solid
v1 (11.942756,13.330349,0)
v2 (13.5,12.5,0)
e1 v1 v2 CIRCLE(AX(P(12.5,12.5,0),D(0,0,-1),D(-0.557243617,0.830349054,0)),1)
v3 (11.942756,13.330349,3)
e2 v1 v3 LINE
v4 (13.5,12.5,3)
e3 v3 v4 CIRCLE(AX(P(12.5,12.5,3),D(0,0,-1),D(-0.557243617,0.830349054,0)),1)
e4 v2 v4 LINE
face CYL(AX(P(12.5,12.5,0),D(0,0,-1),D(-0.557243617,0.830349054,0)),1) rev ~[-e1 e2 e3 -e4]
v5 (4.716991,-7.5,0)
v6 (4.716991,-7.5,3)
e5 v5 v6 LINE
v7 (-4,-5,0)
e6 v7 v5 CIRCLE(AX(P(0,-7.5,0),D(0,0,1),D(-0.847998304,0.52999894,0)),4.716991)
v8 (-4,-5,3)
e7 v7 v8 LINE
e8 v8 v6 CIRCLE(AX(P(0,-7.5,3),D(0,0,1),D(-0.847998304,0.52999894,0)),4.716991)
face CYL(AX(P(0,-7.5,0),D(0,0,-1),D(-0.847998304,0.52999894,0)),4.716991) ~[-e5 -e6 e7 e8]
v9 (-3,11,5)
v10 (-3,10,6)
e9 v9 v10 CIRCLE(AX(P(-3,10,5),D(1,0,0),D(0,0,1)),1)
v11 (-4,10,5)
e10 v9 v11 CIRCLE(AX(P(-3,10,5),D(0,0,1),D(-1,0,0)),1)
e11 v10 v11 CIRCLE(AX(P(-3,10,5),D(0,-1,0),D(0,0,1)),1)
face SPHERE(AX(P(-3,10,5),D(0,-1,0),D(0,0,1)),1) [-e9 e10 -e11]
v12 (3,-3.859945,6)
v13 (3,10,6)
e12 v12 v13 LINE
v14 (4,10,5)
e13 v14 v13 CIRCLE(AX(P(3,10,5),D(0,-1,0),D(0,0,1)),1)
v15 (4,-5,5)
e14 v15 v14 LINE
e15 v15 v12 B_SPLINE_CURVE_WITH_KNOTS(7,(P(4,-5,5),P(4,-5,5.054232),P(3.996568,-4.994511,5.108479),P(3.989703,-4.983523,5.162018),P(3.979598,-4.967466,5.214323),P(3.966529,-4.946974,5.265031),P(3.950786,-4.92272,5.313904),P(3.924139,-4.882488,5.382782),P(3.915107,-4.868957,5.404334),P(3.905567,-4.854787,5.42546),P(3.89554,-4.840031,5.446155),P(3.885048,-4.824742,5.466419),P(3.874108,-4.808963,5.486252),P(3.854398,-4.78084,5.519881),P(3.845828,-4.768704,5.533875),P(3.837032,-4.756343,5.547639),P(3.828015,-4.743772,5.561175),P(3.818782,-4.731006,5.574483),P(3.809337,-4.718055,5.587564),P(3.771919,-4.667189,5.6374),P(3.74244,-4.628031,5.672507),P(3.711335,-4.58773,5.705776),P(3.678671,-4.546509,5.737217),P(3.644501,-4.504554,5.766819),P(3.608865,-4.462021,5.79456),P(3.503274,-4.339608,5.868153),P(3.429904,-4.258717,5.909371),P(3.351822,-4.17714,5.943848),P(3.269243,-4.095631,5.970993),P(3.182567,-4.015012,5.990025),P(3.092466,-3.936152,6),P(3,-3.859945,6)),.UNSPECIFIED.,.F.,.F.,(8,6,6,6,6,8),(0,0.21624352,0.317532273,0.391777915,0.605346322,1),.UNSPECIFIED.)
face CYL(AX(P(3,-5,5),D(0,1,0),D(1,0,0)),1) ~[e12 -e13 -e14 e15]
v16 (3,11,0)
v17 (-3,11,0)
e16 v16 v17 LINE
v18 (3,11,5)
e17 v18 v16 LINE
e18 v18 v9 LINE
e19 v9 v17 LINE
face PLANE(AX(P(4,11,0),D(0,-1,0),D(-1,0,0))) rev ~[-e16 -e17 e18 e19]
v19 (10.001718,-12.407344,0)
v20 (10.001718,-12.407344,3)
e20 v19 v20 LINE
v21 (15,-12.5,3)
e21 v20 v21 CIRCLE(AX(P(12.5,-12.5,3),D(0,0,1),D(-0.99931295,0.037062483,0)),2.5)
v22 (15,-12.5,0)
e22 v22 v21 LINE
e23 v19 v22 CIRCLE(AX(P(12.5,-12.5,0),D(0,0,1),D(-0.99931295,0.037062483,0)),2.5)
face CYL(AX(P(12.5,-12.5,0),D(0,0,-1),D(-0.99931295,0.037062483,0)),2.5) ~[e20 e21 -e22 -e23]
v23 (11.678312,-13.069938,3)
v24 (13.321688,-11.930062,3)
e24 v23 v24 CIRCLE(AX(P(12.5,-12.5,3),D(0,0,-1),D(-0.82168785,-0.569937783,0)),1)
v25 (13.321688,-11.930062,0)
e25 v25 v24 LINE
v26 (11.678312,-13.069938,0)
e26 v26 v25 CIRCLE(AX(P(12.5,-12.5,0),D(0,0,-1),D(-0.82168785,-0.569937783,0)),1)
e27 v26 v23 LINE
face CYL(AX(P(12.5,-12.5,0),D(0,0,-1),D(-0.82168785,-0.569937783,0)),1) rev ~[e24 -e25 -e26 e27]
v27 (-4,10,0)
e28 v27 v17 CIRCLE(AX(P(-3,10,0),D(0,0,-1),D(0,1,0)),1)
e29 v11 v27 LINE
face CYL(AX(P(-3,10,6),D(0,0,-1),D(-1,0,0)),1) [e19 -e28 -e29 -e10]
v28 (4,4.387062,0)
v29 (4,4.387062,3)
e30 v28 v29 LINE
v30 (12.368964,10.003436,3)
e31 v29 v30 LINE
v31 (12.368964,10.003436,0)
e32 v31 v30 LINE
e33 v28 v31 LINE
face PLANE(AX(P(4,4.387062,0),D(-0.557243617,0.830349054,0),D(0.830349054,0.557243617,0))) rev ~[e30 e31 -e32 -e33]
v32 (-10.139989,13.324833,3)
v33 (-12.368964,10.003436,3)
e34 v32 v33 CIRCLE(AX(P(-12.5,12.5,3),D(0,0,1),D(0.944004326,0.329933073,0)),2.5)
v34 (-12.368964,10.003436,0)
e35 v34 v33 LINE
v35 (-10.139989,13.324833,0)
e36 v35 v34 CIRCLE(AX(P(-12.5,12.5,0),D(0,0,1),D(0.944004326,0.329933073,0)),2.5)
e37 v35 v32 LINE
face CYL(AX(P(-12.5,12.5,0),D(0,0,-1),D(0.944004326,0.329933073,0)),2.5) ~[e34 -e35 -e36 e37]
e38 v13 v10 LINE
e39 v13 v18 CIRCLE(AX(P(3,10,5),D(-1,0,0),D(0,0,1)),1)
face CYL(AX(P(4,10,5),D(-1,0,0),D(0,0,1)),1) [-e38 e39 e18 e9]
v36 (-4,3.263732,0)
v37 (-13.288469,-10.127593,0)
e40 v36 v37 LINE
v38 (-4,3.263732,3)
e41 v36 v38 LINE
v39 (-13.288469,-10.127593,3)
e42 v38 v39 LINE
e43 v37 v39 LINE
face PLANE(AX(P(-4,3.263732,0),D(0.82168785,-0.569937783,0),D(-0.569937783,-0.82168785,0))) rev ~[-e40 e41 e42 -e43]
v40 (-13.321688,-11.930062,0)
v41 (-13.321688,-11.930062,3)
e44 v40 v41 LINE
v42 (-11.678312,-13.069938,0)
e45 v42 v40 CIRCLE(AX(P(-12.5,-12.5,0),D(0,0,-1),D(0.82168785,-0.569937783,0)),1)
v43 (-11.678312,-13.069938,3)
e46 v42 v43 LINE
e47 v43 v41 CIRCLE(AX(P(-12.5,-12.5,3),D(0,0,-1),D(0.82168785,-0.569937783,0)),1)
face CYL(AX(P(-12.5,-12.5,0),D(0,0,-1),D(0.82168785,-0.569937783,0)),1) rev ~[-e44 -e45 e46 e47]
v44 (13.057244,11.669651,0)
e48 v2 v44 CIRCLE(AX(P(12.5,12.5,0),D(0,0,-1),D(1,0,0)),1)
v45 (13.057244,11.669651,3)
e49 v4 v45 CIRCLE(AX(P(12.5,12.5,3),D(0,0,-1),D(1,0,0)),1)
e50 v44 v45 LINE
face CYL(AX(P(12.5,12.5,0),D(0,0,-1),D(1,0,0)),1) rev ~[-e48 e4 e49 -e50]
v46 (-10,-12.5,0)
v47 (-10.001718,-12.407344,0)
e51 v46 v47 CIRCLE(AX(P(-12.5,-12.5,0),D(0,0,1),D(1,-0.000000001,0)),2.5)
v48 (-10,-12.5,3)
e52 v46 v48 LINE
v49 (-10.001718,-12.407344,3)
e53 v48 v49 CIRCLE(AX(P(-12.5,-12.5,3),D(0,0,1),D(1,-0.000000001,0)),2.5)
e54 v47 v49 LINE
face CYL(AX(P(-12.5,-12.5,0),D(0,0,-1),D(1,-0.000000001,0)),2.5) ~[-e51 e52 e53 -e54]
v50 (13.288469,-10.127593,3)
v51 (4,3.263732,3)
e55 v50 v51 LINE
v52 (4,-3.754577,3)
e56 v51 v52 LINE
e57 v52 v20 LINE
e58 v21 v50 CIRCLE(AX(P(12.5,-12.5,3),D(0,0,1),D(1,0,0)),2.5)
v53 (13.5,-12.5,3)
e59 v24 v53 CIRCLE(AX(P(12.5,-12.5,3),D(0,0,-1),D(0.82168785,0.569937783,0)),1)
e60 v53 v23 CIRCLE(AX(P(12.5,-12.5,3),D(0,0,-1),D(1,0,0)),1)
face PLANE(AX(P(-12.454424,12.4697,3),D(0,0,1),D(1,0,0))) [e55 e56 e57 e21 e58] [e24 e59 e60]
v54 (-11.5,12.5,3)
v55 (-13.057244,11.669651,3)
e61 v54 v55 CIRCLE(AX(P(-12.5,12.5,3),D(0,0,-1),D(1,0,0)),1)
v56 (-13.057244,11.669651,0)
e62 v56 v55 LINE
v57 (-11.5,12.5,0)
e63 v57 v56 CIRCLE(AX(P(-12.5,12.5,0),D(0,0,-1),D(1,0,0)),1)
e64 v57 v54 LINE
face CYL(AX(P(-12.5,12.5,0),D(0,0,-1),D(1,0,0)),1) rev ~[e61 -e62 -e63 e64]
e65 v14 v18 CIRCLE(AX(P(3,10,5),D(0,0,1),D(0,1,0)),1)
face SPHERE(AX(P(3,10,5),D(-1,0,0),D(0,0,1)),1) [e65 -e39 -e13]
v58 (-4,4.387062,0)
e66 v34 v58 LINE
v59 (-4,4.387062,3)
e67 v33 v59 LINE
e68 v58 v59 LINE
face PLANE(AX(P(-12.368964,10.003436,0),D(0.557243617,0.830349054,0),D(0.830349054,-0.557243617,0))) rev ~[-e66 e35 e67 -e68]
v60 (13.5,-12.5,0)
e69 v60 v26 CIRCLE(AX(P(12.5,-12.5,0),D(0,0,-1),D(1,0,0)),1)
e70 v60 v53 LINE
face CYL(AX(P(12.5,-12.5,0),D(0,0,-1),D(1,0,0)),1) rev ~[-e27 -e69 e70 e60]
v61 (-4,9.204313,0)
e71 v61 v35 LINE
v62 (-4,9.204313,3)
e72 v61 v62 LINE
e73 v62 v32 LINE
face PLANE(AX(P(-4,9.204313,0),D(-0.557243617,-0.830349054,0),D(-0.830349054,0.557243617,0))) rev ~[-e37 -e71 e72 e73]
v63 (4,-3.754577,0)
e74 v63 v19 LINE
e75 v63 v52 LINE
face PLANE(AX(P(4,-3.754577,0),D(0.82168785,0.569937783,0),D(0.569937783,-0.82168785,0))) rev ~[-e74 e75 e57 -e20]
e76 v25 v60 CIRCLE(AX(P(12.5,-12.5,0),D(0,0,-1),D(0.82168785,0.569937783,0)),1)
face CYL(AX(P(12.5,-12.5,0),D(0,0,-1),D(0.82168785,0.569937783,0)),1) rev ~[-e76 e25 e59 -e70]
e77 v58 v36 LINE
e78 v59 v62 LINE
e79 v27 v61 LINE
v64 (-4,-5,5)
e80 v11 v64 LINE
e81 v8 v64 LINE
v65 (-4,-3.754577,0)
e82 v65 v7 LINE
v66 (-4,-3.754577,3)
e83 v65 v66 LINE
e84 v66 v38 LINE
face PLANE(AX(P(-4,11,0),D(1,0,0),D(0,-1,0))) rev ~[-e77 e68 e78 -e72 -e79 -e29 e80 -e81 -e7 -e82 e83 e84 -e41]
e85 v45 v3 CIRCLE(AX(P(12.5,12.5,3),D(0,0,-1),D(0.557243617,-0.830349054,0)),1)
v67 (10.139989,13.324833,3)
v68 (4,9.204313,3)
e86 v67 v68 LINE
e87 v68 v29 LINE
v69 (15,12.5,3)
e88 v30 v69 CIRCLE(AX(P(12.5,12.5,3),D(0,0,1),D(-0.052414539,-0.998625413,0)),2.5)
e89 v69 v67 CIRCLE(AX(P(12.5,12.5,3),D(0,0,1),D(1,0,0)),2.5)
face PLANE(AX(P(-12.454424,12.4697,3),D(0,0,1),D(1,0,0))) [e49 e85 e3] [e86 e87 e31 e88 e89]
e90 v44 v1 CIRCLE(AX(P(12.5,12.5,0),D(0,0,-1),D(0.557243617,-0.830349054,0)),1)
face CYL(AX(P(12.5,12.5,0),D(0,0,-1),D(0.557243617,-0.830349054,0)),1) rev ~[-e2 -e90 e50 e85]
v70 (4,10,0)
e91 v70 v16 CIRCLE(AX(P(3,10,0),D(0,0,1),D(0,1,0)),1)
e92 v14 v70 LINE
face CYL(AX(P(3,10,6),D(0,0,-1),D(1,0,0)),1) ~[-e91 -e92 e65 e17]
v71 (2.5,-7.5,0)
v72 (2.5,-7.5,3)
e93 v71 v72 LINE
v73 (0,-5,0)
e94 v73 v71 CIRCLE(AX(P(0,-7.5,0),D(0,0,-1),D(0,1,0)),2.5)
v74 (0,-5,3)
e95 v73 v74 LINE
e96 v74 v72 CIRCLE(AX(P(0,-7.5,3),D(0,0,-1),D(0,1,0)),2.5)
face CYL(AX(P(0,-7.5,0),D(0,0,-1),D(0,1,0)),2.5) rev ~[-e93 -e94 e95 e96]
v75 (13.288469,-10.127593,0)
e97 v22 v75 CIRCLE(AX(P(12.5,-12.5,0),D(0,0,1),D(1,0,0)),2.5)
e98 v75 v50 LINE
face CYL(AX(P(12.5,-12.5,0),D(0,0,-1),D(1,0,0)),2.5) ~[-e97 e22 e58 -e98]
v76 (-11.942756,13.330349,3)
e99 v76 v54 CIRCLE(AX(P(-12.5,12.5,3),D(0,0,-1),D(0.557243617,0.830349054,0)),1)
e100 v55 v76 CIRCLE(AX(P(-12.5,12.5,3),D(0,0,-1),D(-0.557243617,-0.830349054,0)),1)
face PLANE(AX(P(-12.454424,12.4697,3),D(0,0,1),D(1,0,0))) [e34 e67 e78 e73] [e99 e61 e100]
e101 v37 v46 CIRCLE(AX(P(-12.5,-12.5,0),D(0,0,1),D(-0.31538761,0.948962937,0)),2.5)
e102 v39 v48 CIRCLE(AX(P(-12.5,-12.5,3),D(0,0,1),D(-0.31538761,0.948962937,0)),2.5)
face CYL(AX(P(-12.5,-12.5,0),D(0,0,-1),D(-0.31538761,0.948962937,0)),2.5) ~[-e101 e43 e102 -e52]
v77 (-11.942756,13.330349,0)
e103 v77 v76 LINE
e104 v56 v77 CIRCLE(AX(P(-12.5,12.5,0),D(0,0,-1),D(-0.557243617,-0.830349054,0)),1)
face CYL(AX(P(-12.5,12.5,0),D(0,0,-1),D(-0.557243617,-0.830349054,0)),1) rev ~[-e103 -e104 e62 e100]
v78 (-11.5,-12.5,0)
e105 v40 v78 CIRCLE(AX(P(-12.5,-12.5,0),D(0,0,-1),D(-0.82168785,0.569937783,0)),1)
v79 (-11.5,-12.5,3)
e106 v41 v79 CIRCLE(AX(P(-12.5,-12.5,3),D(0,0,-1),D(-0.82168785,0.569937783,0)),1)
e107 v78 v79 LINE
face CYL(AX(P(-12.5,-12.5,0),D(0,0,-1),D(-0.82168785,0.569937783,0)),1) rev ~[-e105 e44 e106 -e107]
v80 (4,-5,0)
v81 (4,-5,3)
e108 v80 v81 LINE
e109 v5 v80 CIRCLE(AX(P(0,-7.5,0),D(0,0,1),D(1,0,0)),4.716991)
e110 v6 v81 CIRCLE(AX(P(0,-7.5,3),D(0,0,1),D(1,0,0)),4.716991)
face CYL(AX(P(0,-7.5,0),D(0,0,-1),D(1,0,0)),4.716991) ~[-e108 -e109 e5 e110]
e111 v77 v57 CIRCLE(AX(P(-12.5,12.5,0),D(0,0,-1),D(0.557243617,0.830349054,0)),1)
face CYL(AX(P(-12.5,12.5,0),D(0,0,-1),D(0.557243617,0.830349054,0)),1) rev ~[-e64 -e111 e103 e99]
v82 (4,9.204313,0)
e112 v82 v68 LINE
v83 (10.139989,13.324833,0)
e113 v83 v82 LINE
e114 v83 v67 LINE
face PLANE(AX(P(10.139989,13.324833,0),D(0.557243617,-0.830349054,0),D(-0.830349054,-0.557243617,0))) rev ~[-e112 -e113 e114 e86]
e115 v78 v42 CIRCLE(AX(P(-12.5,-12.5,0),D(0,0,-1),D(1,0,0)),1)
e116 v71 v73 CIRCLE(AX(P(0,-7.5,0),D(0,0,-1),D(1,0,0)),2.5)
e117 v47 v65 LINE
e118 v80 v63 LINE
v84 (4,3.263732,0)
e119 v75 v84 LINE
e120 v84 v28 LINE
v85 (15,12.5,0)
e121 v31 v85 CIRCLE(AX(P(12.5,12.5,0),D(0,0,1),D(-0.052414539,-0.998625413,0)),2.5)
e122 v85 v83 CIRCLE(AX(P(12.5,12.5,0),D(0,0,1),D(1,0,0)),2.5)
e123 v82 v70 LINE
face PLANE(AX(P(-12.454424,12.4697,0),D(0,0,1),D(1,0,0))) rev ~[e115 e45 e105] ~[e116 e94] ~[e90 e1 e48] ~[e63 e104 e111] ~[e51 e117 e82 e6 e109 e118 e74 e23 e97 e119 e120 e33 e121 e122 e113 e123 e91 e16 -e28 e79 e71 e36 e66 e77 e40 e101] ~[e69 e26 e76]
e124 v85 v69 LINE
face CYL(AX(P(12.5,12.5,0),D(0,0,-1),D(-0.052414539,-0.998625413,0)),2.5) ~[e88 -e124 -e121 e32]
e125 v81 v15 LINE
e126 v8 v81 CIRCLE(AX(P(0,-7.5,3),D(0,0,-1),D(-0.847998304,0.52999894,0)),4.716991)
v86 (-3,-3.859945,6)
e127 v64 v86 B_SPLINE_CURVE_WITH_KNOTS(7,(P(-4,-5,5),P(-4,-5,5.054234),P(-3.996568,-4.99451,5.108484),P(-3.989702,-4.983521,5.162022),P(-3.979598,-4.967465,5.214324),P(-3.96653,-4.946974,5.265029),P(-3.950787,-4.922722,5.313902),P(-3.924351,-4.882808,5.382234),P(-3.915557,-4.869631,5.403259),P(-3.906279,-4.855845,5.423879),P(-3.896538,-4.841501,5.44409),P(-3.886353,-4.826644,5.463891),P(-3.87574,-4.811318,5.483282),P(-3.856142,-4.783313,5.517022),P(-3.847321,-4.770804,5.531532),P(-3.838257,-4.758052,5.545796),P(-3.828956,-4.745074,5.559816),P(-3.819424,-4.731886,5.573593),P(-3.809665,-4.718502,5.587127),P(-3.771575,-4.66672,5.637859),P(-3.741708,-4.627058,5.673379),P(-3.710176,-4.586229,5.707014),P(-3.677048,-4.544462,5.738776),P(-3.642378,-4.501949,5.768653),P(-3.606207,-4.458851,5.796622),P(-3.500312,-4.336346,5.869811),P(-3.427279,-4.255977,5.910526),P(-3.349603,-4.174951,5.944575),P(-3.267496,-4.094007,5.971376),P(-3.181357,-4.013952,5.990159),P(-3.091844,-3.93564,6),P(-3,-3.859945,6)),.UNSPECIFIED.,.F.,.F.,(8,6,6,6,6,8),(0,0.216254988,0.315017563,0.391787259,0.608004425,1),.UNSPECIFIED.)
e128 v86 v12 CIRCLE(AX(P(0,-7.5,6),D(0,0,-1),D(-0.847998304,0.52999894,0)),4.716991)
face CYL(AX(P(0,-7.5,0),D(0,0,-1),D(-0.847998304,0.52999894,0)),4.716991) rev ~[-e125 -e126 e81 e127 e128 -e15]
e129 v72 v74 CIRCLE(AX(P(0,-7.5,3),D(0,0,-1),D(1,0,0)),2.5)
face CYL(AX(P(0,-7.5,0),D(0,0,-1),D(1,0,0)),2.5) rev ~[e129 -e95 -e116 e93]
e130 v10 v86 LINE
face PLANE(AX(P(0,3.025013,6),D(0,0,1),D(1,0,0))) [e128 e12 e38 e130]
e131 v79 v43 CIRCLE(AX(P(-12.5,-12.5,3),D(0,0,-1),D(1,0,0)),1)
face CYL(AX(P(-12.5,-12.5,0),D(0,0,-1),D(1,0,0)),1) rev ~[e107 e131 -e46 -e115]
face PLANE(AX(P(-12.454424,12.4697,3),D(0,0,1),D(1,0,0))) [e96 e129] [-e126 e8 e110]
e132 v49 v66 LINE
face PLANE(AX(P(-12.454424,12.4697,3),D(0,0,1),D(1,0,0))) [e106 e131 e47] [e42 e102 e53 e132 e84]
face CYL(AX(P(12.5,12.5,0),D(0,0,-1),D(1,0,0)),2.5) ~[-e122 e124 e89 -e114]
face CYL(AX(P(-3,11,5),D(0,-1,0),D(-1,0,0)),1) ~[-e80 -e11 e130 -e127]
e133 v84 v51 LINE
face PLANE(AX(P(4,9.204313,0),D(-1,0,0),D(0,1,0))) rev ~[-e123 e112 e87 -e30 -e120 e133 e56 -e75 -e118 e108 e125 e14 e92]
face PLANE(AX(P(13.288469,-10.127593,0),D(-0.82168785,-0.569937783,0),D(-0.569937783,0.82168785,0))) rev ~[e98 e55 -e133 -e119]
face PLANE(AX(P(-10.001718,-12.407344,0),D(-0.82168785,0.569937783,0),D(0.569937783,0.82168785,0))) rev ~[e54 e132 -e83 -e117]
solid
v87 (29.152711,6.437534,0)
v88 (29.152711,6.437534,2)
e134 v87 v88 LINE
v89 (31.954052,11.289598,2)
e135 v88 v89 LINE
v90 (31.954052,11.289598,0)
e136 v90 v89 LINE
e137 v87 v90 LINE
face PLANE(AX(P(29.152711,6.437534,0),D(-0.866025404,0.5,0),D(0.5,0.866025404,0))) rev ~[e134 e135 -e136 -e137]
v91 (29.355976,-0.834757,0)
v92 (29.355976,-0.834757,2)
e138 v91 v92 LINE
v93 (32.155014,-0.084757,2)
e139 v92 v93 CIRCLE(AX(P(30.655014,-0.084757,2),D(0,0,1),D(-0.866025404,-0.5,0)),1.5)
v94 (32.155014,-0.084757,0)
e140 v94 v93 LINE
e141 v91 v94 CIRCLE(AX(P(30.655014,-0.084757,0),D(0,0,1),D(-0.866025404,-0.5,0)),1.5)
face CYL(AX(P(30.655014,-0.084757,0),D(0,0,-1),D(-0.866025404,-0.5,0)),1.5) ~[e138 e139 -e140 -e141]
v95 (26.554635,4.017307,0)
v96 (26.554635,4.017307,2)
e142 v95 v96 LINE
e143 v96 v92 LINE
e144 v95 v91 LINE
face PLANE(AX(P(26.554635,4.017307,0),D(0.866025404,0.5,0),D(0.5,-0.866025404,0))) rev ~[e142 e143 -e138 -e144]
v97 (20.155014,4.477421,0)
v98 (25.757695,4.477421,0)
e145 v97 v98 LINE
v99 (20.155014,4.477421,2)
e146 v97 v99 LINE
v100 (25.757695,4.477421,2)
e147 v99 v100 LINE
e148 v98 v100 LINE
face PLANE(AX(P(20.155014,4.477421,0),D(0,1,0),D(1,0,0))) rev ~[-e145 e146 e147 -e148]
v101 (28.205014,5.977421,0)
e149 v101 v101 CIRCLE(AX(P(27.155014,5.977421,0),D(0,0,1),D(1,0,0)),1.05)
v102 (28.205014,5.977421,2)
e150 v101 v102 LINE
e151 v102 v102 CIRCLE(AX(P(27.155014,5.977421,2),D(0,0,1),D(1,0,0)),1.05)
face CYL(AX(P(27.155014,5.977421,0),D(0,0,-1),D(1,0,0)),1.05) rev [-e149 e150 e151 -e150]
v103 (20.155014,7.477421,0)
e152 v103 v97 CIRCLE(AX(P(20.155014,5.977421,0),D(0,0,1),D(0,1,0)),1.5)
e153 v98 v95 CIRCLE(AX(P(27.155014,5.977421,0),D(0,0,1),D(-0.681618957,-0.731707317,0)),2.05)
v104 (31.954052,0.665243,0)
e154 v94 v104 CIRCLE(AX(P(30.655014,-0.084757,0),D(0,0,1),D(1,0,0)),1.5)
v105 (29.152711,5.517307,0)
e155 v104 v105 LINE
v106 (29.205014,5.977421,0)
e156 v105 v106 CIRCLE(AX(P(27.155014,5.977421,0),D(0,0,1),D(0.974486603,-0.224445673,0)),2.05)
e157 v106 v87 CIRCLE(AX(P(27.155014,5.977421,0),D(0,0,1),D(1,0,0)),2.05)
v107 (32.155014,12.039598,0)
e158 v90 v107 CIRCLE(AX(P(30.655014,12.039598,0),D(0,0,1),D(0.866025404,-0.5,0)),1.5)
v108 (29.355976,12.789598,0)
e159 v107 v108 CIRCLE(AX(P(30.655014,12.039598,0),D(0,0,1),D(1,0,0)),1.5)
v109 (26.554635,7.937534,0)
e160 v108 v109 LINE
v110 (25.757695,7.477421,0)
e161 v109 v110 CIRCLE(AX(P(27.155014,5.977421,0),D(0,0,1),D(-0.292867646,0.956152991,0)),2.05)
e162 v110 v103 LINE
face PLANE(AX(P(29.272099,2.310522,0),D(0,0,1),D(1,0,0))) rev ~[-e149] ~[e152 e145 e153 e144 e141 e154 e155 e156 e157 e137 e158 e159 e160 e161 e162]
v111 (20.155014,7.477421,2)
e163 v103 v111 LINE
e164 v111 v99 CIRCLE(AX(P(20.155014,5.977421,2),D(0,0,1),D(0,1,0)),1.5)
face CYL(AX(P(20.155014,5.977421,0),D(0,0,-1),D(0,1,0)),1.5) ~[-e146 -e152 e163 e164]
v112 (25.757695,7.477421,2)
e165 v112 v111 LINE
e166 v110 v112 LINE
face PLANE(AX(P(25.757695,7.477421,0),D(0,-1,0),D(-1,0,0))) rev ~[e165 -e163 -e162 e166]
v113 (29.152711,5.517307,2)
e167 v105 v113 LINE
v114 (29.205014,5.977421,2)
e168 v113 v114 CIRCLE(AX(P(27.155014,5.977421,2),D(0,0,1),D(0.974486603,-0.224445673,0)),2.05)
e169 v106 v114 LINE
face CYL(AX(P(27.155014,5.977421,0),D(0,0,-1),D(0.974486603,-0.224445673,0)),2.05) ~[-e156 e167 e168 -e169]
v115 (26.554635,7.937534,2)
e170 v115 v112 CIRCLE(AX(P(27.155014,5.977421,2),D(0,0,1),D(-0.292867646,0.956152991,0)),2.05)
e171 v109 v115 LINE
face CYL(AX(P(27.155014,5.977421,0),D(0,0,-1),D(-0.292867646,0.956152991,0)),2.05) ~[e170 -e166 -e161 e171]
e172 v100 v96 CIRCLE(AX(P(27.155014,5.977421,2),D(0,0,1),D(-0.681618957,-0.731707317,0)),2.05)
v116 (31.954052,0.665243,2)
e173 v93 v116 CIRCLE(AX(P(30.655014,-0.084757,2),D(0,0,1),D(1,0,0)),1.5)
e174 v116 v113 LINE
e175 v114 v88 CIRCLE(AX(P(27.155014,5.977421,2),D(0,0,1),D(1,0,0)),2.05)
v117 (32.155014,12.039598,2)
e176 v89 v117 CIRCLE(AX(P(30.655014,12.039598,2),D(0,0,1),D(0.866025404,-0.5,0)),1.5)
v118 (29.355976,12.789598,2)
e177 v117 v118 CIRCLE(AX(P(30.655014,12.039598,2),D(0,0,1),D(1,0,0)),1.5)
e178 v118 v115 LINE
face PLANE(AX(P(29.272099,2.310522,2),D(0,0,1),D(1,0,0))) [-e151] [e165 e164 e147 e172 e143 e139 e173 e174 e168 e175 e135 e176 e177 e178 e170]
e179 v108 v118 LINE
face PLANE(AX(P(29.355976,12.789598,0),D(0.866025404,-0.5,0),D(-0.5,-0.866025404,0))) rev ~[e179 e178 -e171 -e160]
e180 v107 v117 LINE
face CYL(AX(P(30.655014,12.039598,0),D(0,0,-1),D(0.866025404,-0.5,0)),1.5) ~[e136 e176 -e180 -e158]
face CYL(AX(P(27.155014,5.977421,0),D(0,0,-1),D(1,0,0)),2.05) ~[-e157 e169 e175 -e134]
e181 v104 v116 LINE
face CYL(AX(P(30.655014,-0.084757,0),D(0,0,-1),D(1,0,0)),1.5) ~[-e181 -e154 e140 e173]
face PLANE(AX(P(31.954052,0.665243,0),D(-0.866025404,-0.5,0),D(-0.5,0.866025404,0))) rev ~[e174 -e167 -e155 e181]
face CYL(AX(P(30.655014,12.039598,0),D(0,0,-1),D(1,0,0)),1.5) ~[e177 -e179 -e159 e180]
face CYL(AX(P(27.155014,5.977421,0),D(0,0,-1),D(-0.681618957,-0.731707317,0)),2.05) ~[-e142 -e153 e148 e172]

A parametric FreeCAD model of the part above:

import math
import FreeCAD as App
import Part
import Sketcher
from FreeCAD import Vector
Q = App.Units.Quantity


def edges_at(feature, points):
    """Names of the edges that pass closest to the given points."""
    edges = feature.Shape.Edges
    near = lambda p: min(range(len(edges)), key=lambda i: edges[i].distToShape(Part.Vertex(*p))[0])
    return sorted({f"Edge{near(p) + 1}" for p in points})

doc = App.newDocument("Part")
body = doc.addObject("PartDesign::Body", "Body")

sketch1 = body.newObject("Sketcher::SketchObject", "Sketch")
sketch1.AttachmentSupport = (doc.getObject("XY_Plane"), [""])
sketch1.MapMode = "FlatFace"
sketch1.addGeometry([
    Part.LineSegment(Vector(-4, 9.2, 0), Vector(-10.14, 13.32, 0)),
    Part.ArcOfCircle(Part.Circle(Vector(-12.5, 12.5, 0), Vector(0, 0, 1), 2.5), math.radians(19), math.radians(273)),
    Part.LineSegment(Vector(-12.37, 10, 0), Vector(-4, 4.39, 0)),
    Part.LineSegment(Vector(-4, 4.39, 0), Vector(-4, 3.26, 0)),
    Part.LineSegment(Vector(-4, 3.26, 0), Vector(-13.29, -10.13, 0)),
    Part.ArcOfCircle(Part.Circle(Vector(-12.5, -12.5, 0), Vector(0, 0, 1), 2.5), math.radians(108), math.radians(360)),
    Part.ArcOfCircle(Part.Circle(Vector(-12.5, -12.5, 0), Vector(0, 0, 1), 2.5), math.radians(0), math.radians(2.12)),
    Part.LineSegment(Vector(-10, -12.41, 0), Vector(-4, -3.75, 0)),
    Part.LineSegment(Vector(-4, -3.75, 0), Vector(-4, -5, 0)),
    Part.ArcOfCircle(Part.Circle(Vector(0, -7.5, 0), Vector(0, 0, 1), 4.72), math.radians(148), math.radians(360)),
    Part.ArcOfCircle(Part.Circle(Vector(0, -7.5, 0), Vector(0, 0, 1), 4.72), math.radians(0), math.radians(32)),
    Part.LineSegment(Vector(4, -5, 0), Vector(4, -3.75, 0)),
    Part.LineSegment(Vector(4, -3.75, 0), Vector(10, -12.41, 0)),
    Part.ArcOfCircle(Part.Circle(Vector(12.5, -12.5, 0), Vector(0, 0, 1), 2.5), math.radians(178), math.radians(360)),
    Part.ArcOfCircle(Part.Circle(Vector(12.5, -12.5, 0), Vector(0, 0, 1), 2.5), math.radians(0), math.radians(72)),
    Part.LineSegment(Vector(13.29, -10.13, 0), Vector(4, 3.26, 0)),
    Part.LineSegment(Vector(4, 3.26, 0), Vector(4, 4.39, 0)),
    Part.LineSegment(Vector(4, 4.39, 0), Vector(12.37, 10, 0)),
    Part.ArcOfCircle(Part.Circle(Vector(12.5, 12.5, 0), Vector(0, 0, 1), 2.5), math.radians(-93), math.radians(0)),
    Part.ArcOfCircle(Part.Circle(Vector(12.5, 12.5, 0), Vector(0, 0, 1), 2.5), math.radians(0), math.radians(161)),
    Part.LineSegment(Vector(10.14, 13.32, 0), Vector(4, 9.2, 0)),
    Part.LineSegment(Vector(4, 9.2, 0), Vector(4, 11, 0)),
    Part.LineSegment(Vector(4, 11, 0), Vector(-4, 11, 0)),
    Part.LineSegment(Vector(-4, 11, 0), Vector(-4, 9.2, 0)),
    Part.ArcOfCircle(Part.Circle(Vector(-12.5, -12.5, 0), Vector(0, 0, 1), 1), math.radians(145), math.radians(325)),
    Part.ArcOfCircle(Part.Circle(Vector(-12.5, -12.5, 0), Vector(0, 0, 1), 1), math.radians(0), math.radians(145)),
    Part.ArcOfCircle(Part.Circle(Vector(-12.5, -12.5, 0), Vector(0, 0, 1), 1), math.radians(-35), math.radians(0)),
    Part.ArcOfCircle(Part.Circle(Vector(0, -7.5, 0), Vector(0, 0, 1), 2.5), math.radians(0), math.radians(90)),
    Part.ArcOfCircle(Part.Circle(Vector(0, -7.5, 0), Vector(0, 0, 1), 2.5), math.radians(90), math.radians(360)),
    Part.ArcOfCircle(Part.Circle(Vector(12.5, -12.5, 0), Vector(0, 0, 1), 1), math.radians(0), math.radians(35)),
    Part.ArcOfCircle(Part.Circle(Vector(12.5, -12.5, 0), Vector(0, 0, 1), 1), math.radians(-145), math.radians(0)),
    Part.ArcOfCircle(Part.Circle(Vector(12.5, -12.5, 0), Vector(0, 0, 1), 1), math.radians(35), math.radians(215)),
    Part.ArcOfCircle(Part.Circle(Vector(-12.5, 12.5, 0), Vector(0, 0, 1), 1), math.radians(56), math.radians(236)),
    Part.ArcOfCircle(Part.Circle(Vector(-12.5, 12.5, 0), Vector(0, 0, 1), 1), math.radians(0), math.radians(56)),
    Part.ArcOfCircle(Part.Circle(Vector(-12.5, 12.5, 0), Vector(0, 0, 1), 1), math.radians(-124), math.radians(0)),
    Part.ArcOfCircle(Part.Circle(Vector(12.5, 12.5, 0), Vector(0, 0, 1), 1), math.radians(0), math.radians(124)),
    Part.ArcOfCircle(Part.Circle(Vector(12.5, 12.5, 0), Vector(0, 0, 1), 1), math.radians(-56), math.radians(0)),
    Part.ArcOfCircle(Part.Circle(Vector(12.5, 12.5, 0), Vector(0, 0, 1), 1), math.radians(124), math.radians(304)),
], False)
sketch1.addConstraint([
    Sketcher.Constraint("Coincident", 0, 2, 1, 1),
    Sketcher.Constraint("Coincident", 1, 2, 2, 1),
    Sketcher.Constraint("Coincident", 2, 2, 3, 1),
    Sketcher.Constraint("Coincident", 3, 2, 4, 1),
    Sketcher.Constraint("Coincident", 4, 2, 5, 1),
    Sketcher.Constraint("Tangent", 5, 2, 6, 1),
    Sketcher.Constraint("Coincident", 6, 2, 7, 1),
    Sketcher.Constraint("Coincident", 7, 2, 8, 1),
    Sketcher.Constraint("Coincident", 8, 2, 9, 1),
    Sketcher.Constraint("Tangent", 9, 2, 10, 1),
    Sketcher.Constraint("Coincident", 10, 2, 11, 1),
    Sketcher.Constraint("Coincident", 11, 2, 12, 1),
    Sketcher.Constraint("Coincident", 12, 2, 13, 1),
    Sketcher.Constraint("Tangent", 13, 2, 14, 1),
    Sketcher.Constraint("Coincident", 14, 2, 15, 1),
    Sketcher.Constraint("Coincident", 15, 2, 16, 1),
    Sketcher.Constraint("Coincident", 16, 2, 17, 1),
    Sketcher.Constraint("Coincident", 17, 2, 18, 1),
    Sketcher.Constraint("Tangent", 18, 2, 19, 1),
    Sketcher.Constraint("Coincident", 19, 2, 20, 1),
    Sketcher.Constraint("Coincident", 20, 2, 21, 1),
    Sketcher.Constraint("Coincident", 21, 2, 22, 1),
    Sketcher.Constraint("Coincident", 22, 2, 23, 1),
    Sketcher.Constraint("Coincident", 23, 2, 0, 1),
    Sketcher.Constraint("Tangent", 24, 1, 25, 2),
    Sketcher.Constraint("Tangent", 25, 1, 26, 2),
    Sketcher.Constraint("Tangent", 26, 1, 24, 2),
    Sketcher.Constraint("Tangent", 27, 1, 28, 2),
    Sketcher.Constraint("Coincident", 28, 1, 27, 2),
    Sketcher.Constraint("Tangent", 29, 1, 30, 2),
    Sketcher.Constraint("Tangent", 30, 1, 31, 2),
    Sketcher.Constraint("Tangent", 31, 1, 29, 2),
    Sketcher.Constraint("Tangent", 32, 1, 33, 2),
    Sketcher.Constraint("Tangent", 33, 1, 34, 2),
    Sketcher.Constraint("Tangent", 34, 1, 32, 2),
    Sketcher.Constraint("Tangent", 35, 1, 36, 2),
    Sketcher.Constraint("Tangent", 36, 1, 37, 2),
    Sketcher.Constraint("Tangent", 37, 1, 35, 2),
    Sketcher.Constraint("Vertical", 3),
    Sketcher.Constraint("Vertical", 8),
    Sketcher.Constraint("Vertical", 11),
    Sketcher.Constraint("Vertical", 16),
    Sketcher.Constraint("Vertical", 21),
    Sketcher.Constraint("Horizontal", 22),
    Sketcher.Constraint("Vertical", 23),
    Sketcher.Constraint("Coincident", 24, 3, 5, 3),
    Sketcher.Constraint("Coincident", 27, 3, 9, 3),
    Sketcher.Constraint("Coincident", 29, 3, 13, 3),
    Sketcher.Constraint("Coincident", 32, 3, 1, 3),
    Sketcher.Constraint("Coincident", 35, 3, 18, 3),
    Sketcher.Constraint("Equal", 1, 5),
    Sketcher.Constraint("Equal", 5, 6),
    Sketcher.Constraint("Equal", 9, 10),
    Sketcher.Constraint("Equal", 6, 13),
    Sketcher.Constraint("Equal", 13, 14),
    Sketcher.Constraint("Equal", 14, 18),
    Sketcher.Constraint("Equal", 18, 19),
    Sketcher.Constraint("Equal", 19, 27),
    Sketcher.Constraint("Equal", 26, 29),
    Sketcher.Constraint("Equal", 31, 32),
    Sketcher.Constraint("Equal", 34, 35),
    Sketcher.Constraint("Symmetric", 1, 3, 13, 3, -1, 1),
    Sketcher.Constraint("Symmetric", 5, 3, 18, 3, -1, 1),
    Sketcher.Constraint("Symmetric", 5, 3, 13, 3, -2),
    Sketcher.Constraint("Symmetric", 8, 2, 10, 2, -2),
    Sketcher.Constraint("Symmetric", 3, 2, 15, 2, -2),
    Sketcher.Constraint("Symmetric", 20, 2, 23, 2, -2),
    Sketcher.Constraint("PointOnObject", 28, 1, -2),
    Sketcher.Constraint("Parallel", 0, 2),
    Sketcher.Constraint("Parallel", 4, 7),
    Sketcher.Constraint("Parallel", 12, 15),
    Sketcher.Constraint("Parallel", 17, 20),
    Sketcher.Constraint("Horizontal", 31, 3, 5, 2),
    Sketcher.Constraint("Horizontal", 28, 3, 9, 2),
    Sketcher.Constraint("Horizontal", 7, 2, 11, 2),
    Sketcher.Constraint("Horizontal", 6, 2, 12, 2),
    Sketcher.Constraint("Horizontal", 5, 2, 13, 2),
    Sketcher.Constraint("Horizontal", 2, 2, 16, 2),
    Sketcher.Constraint("Horizontal", 1, 2, 17, 2),
    Sketcher.Constraint("Horizontal", 37, 3, 18, 2),
    Sketcher.Constraint("Horizontal", 13, 2, 25, 1),
    Sketcher.Constraint("Horizontal", 9, 2, 27, 1),
    Sketcher.Constraint("Horizontal", 10, 2, 28, 1),
    Sketcher.Constraint("Horizontal", 25, 1, 29, 1),
    Sketcher.Constraint("Horizontal", 26, 1, 30, 1),
    Sketcher.Constraint("Horizontal", 24, 1, 31, 1),
    Sketcher.Constraint("Horizontal", 18, 2, 33, 1),
    Sketcher.Constraint("Horizontal", 33, 1, 35, 1),
    Sketcher.Constraint("Horizontal", 34, 1, 36, 1),
    Sketcher.Constraint("Horizontal", 32, 1, 37, 1),
    Sketcher.Constraint("Vertical", 3, 2, 7, 2),
    Sketcher.Constraint("Vertical", 16, 2, 20, 2),
    Sketcher.Constraint("Radius", 24, 1.0),
    Sketcher.Constraint("Radius", 1, 2.5),
    Sketcher.Constraint("DistanceX", 22, 2, 22, 1, 8.0),
    Sketcher.Constraint("DistanceX", 5, 2, -1, 1, 10.0),
    Sketcher.Constraint("DistanceY", 8, 2, -1, 1, 5.0),
    Sketcher.Constraint("DistanceY", -1, 1, 21, 2, 11.0),
    Sketcher.Constraint("DistanceY", -1, 1, 1, 3, 12.5),
    Sketcher.Constraint("DistanceY", 3, 2, 3, 1, 1.123329),
    Sketcher.Constraint("Distance", 2, 10.07885),
    Sketcher.Constraint("Distance", 4, 16.297339),
    Sketcher.Constraint("Distance", 7, 10.530479),
    Sketcher.Constraint("DistanceY", 8, 2, 8, 1, 1.245423),
    Sketcher.Constraint("DistanceY", 21, 1, 21, 2, 1.795687),
    Sketcher.Constraint("DistanceY", -1, 1, 32, 1, 13.330349),
    Sketcher.Constraint("DistanceY", -1, 1, 34, 1, 11.669651),
    Sketcher.Constraint("DistanceX", 24, 1, -1, 1, 13.321688),
    Sketcher.Constraint("DistanceX", 26, 1, -1, 1, 11.678312),
])
pad1 = body.newObject("PartDesign::Pad", "Pad")
pad1.Profile = sketch1
pad1.Length = 3

sketch2 = body.newObject("Sketcher::SketchObject", "Sketch001")
sketch2.AttachmentSupport = (doc.getObject("XY_Plane"), [""])
sketch2.MapMode = "FlatFace"
sketch2.addGeometry([
    Part.ArcOfCircle(Part.Circle(Vector(0, -7.5, 0), Vector(0, 0, 1), 4.7), math.radians(32), math.radians(148)),
    Part.LineSegment(Vector(4, -5, 0), Vector(4, 11, 0)),
    Part.LineSegment(Vector(4, 11, 0), Vector(-4, 11, 0)),
    Part.LineSegment(Vector(-4, 11, 0), Vector(-4, -5, 0)),
], False)
sketch2.addConstraint([
    Sketcher.Constraint("Coincident", 0, 1, 1, 1),
    Sketcher.Constraint("Coincident", 1, 2, 2, 1),
    Sketcher.Constraint("Coincident", 2, 2, 3, 1),
    Sketcher.Constraint("Coincident", 3, 2, 0, 2),
    Sketcher.Constraint("Vertical", 1),
    Sketcher.Constraint("Horizontal", 2),
    Sketcher.Constraint("Vertical", 3),
    Sketcher.Constraint("Symmetric", 0, 1, 3, 2, -2),
    Sketcher.Constraint("DistanceX", 2, 2, 2, 1, 8.0),
    Sketcher.Constraint("DistanceY", 1, 1, 1, 2, 16.0),
    Sketcher.Constraint("DistanceY", 0, 1, -1, 1, 5.0),
    Sketcher.Constraint("DistanceY", 0, 3, -1, 1, 7.5),
])
pad2 = body.newObject("PartDesign::Pad", "Pad001")
pad2.Profile = sketch2
pad2.Length = 6
doc.recompute()

fillet = body.newObject("PartDesign::Fillet", "Fillet")
fillet.Base = (pad2, edges_at(pad2, [
    (-4, 3, 6),
    (0, 11, 6),
    (4, 3, 6),
    (4, 11, 3),
    (-4, 11, 3),
]))
fillet.Radius = 1
body2 = doc.addObject("PartDesign::Body", "Body001")

sketch3 = body2.newObject("Sketcher::SketchObject", "Sketch002")
sketch3.AttachmentSupport = (doc.getObject("XY_Plane001"), [""])
sketch3.MapMode = "FlatFace"
sketch3.addGeometry([
    Part.LineSegment(Vector(31.95, 0.67, 0), Vector(29.15, 5.52, 0)),
    Part.ArcOfCircle(Part.Circle(Vector(27.16, 5.98, 0), Vector(0, 0, 1), 2.05), math.radians(-12.97), math.radians(0)),
    Part.ArcOfCircle(Part.Circle(Vector(27.16, 5.98, 0), Vector(0, 0, 1), 2.05), math.radians(0), math.radians(12.97)),
    Part.LineSegment(Vector(29.15, 6.44, 0), Vector(31.95, 11.29, 0)),
    Part.ArcOfCircle(Part.Circle(Vector(30.66, 12.04, 0), Vector(0, 0, 1), 1.5), math.radians(-30), math.radians(0)),
    Part.ArcOfCircle(Part.Circle(Vector(30.66, 12.04, 0), Vector(0, 0, 1), 1.5), math.radians(0), math.radians(150)),
    Part.LineSegment(Vector(29.36, 12.79, 0), Vector(26.55, 7.94, 0)),
    Part.ArcOfCircle(Part.Circle(Vector(27.16, 5.98, 0), Vector(0, 0, 1), 2.05), math.radians(107), math.radians(133)),
    Part.LineSegment(Vector(25.76, 7.48, 0), Vector(20.16, 7.48, 0)),
    Part.ArcOfCircle(Part.Circle(Vector(20.16, 5.98, 0), Vector(0, 0, 1), 1.5), math.radians(90), math.radians(270)),
    Part.LineSegment(Vector(20.16, 4.48, 0), Vector(25.76, 4.48, 0)),
    Part.ArcOfCircle(Part.Circle(Vector(27.16, 5.98, 0), Vector(0, 0, 1), 2.05), math.radians(-133), math.radians(-107)),
    Part.LineSegment(Vector(26.55, 4.02, 0), Vector(29.36, -0.83, 0)),
    Part.ArcOfCircle(Part.Circle(Vector(30.66, -0.08, 0), Vector(0, 0, 1), 1.5), math.radians(-150), math.radians(0)),
    Part.ArcOfCircle(Part.Circle(Vector(30.66, -0.08, 0), Vector(0, 0, 1), 1.5), math.radians(0), math.radians(30)),
    Part.Circle(Vector(27.16, 5.98, 0), Vector(0, 0, 1), 1.05),
], False)
sketch3.addConstraint([
    Sketcher.Constraint("Coincident", 0, 2, 1, 1),
    Sketcher.Constraint("Tangent", 1, 2, 2, 1),
    Sketcher.Constraint("Coincident", 2, 2, 3, 1),
    Sketcher.Constraint("Tangent", 3, 2, 4, 1),
    Sketcher.Constraint("Tangent", 4, 2, 5, 1),
    Sketcher.Constraint("Tangent", 5, 2, 6, 1),
    Sketcher.Constraint("Coincident", 6, 2, 7, 1),
    Sketcher.Constraint("Coincident", 7, 2, 8, 1),
    Sketcher.Constraint("Tangent", 8, 2, 9, 1),
    Sketcher.Constraint("Tangent", 9, 2, 10, 1),
    Sketcher.Constraint("Coincident", 10, 2, 11, 1),
    Sketcher.Constraint("Coincident", 11, 2, 12, 1),
    Sketcher.Constraint("Tangent", 12, 2, 13, 1),
    Sketcher.Constraint("Tangent", 13, 2, 14, 1),
    Sketcher.Constraint("Tangent", 14, 2, 0, 1),
    Sketcher.Constraint("Horizontal", 8),
    Sketcher.Constraint("Horizontal", 10),
    Sketcher.Constraint("Coincident", 7, 3, 1, 3),
    Sketcher.Constraint("Coincident", 11, 3, 1, 3),
    Sketcher.Constraint("Coincident", 15, 3, 1, 3),
    Sketcher.Constraint("Equal", 1, 2),
    Sketcher.Constraint("Equal", 4, 5),
    Sketcher.Constraint("Equal", 2, 7),
    Sketcher.Constraint("Equal", 5, 9),
    Sketcher.Constraint("Equal", 7, 11),
    Sketcher.Constraint("Equal", 9, 13),
    Sketcher.Constraint("Equal", 13, 14),
    Sketcher.Constraint("Parallel", 3, 6),
    Sketcher.Constraint("Parallel", 0, 12),
    Sketcher.Constraint("Horizontal", 7, 3, 9, 3),
    Sketcher.Constraint("Horizontal", 15, 3, 1, 2),
    Sketcher.Constraint("Horizontal", 5, 3, 4, 2),
    Sketcher.Constraint("Horizontal", 14, 3, 13, 2),
    Sketcher.Constraint("Vertical", 5, 3, 13, 3),
    Sketcher.Constraint("Vertical", 0, 2, 2, 2),
    Sketcher.Constraint("Vertical", 5, 2, 12, 2),
    Sketcher.Constraint("Equal", 3, 6),
    Sketcher.Constraint("Diameter", 15, 2.1),
    Sketcher.Constraint("Radius", 4, 1.5),
    Sketcher.Constraint("Angle", 0, Q("120 deg")),
    Sketcher.Constraint("Radius", 1, 2.05),
    Sketcher.Constraint("DistanceX", 9, 3, 1, 3, 7.0),
    Sketcher.Constraint("DistanceX", 1, 3, 4, 3, 3.5),
    Sketcher.Constraint("DistanceY", -1, 1, 4, 3, 12.039598),
    Sketcher.Constraint("DistanceX", -1, 1, 0, 2, 29.152711),
])
pad3 = body2.newObject("PartDesign::Pad", "Pad002")
pad3.Profile = sketch3
pad3.Length = 2

doc.recompute()
